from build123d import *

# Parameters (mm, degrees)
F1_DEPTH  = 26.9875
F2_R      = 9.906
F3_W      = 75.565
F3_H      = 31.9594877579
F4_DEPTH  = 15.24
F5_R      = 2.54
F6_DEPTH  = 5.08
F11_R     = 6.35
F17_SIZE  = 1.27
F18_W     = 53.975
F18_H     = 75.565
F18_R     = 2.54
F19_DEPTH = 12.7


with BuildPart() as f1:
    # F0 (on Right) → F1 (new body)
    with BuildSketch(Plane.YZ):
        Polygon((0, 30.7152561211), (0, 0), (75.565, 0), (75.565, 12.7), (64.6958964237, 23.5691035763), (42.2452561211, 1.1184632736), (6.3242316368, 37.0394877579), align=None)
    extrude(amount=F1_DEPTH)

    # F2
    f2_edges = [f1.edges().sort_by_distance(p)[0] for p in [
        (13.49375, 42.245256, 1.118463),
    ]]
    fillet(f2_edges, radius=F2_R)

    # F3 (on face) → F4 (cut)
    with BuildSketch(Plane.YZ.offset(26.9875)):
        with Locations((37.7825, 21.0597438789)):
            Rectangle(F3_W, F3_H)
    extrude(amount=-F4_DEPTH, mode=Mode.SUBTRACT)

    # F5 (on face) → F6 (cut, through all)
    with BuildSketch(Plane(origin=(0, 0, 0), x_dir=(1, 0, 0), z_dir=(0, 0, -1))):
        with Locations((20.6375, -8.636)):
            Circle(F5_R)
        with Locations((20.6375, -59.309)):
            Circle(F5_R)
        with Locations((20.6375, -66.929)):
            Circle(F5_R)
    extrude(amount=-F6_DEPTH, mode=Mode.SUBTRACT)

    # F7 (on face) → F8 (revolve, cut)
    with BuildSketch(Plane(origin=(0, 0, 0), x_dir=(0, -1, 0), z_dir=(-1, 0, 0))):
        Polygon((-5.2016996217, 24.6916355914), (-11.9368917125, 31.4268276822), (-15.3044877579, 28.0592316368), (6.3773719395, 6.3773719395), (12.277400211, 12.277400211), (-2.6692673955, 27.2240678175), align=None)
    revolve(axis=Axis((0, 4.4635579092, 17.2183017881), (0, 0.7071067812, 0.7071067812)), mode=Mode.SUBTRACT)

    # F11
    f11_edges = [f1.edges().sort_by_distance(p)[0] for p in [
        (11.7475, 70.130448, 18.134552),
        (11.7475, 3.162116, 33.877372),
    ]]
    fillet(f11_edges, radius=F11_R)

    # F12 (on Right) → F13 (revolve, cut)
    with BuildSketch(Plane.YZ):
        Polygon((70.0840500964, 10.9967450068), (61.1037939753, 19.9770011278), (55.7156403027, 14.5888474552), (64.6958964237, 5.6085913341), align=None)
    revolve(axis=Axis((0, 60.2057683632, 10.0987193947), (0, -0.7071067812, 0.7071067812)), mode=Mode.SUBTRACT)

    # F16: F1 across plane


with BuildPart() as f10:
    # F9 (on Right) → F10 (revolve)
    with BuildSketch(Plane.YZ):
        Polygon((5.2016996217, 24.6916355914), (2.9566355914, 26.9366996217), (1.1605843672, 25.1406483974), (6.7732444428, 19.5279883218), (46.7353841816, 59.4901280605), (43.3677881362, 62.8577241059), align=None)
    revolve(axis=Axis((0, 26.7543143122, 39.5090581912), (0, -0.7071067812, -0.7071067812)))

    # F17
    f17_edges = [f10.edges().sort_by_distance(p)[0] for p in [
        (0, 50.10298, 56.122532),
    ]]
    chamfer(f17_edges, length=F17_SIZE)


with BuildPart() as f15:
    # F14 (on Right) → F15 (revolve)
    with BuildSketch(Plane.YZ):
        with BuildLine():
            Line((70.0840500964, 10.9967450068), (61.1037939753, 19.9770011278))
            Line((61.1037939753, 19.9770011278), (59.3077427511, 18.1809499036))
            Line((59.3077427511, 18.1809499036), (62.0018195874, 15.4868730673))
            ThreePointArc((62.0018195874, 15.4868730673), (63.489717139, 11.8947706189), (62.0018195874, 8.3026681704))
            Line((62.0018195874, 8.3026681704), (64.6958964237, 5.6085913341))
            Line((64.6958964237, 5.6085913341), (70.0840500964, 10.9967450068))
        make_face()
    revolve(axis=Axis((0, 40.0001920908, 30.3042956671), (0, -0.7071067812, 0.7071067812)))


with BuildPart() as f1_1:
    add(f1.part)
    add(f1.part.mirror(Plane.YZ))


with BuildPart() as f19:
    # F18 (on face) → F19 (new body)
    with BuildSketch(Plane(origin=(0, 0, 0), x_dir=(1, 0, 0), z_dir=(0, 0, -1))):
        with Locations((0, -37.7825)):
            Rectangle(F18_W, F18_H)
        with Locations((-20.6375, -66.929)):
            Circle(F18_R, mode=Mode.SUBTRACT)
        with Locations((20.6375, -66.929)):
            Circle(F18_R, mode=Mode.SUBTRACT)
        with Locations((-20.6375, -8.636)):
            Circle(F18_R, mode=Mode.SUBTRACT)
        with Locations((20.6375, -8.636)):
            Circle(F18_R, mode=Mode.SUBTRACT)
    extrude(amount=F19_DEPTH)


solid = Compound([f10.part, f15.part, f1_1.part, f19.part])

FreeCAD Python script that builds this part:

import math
import FreeCAD as App
import Part
import Sketcher
Q = App.Units.Quantity


def edges_at(feature, points):
    """Names of the edges that pass closest to the given points."""
    edges = feature.Shape.Edges
    near = lambda p: min(range(len(edges)), key=lambda i: edges[i].distToShape(Part.Vertex(*p))[0])
    return sorted({f"Edge{near(p) + 1}" for p in points})

doc = App.newDocument("Part")
body = doc.addObject("PartDesign::Body", "Body")

# Sketch on YZ plane
sketch1 = body.newObject("Sketcher::SketchObject", "Sketch")
sketch1.AttachmentSupport = (doc.getObject("YZ_Plane"), [""])
sketch1.MapMode = "FlatFace"
sketch1.addGeometry([
    Part.LineSegment(App.Vector(0, 31, 0), App.Vector(0, 0, 0)),  # 0
    Part.LineSegment(App.Vector(0, 0, 0), App.Vector(76, 0, 0)),  # 1
    Part.LineSegment(App.Vector(76, 0, 0), App.Vector(76, 13, 0)),  # 2
    Part.LineSegment(App.Vector(76, 13, 0), App.Vector(65, 24, 0)),  # 3
    Part.LineSegment(App.Vector(65, 24, 0), App.Vector(42, 1, 0)),  # 4
    Part.LineSegment(App.Vector(42, 1, 0), App.Vector(6, 37, 0)),  # 5
    Part.LineSegment(App.Vector(6, 37, 0), App.Vector(0, 31, 0)),  # 6
], False)
sketch1.addConstraint([
    Sketcher.Constraint("Coincident", 0, 2, 1, 1),
    Sketcher.Constraint("Coincident", 1, 2, 2, 1),
    Sketcher.Constraint("Coincident", 2, 2, 3, 1),
    Sketcher.Constraint("Coincident", 3, 2, 4, 1),
    Sketcher.Constraint("Coincident", 4, 2, 5, 1),
    Sketcher.Constraint("Coincident", 5, 2, 6, 1),
    Sketcher.Constraint("Coincident", 6, 2, 0, 1),
    Sketcher.Constraint("Vertical", 0),
    Sketcher.Constraint("Horizontal", 1),
    Sketcher.Constraint("Vertical", 2),
    Sketcher.Constraint("Coincident", 0, 2, -1, 1),
    Sketcher.Constraint("Perpendicular", 3, 4),
    Sketcher.Constraint("Perpendicular", 4, 5),
    Sketcher.Constraint("Perpendicular", 5, 6),
    Sketcher.Constraint("Distance", 5, Q("2 in")),
    Sketcher.Constraint("DistanceY", 2, 1, 2, 2, Q("0.5 in")),
    Sketcher.Constraint("Angle", 3, Q("135 deg")),
    Sketcher.Constraint("Distance", 4, Q("1.25 in")),
    Sketcher.Constraint("DistanceX", 1, 1, 1, 2, Q("2.975 in")),
    Sketcher.Constraint("DistanceY", 0, 2, 0, 1, 30.715256),
])
pad1 = body.newObject("PartDesign::Pad", "Pad")
pad1.Profile = sketch1
pad1.Length = Q("1.0625 in")
doc.recompute()

fillet = body.newObject("PartDesign::Fillet", "Fillet")
fillet.Base = (pad1, edges_at(pad1, [(13.494, 42.245, 1.118)]))
fillet.Radius = Q("0.39 in")

# Sketch on YZ plane
sketch2 = body.newObject("Sketcher::SketchObject", "Sketch001")
sketch2.AttachmentSupport = (doc.getObject("YZ_Plane"), [""])
sketch2.MapMode = "FlatFace"
sketch2.AttachmentOffset = App.Placement(App.Vector(0, 0, 1.0625 * 25.4), App.Rotation())
sketch2.addGeometry([
    Part.LineSegment(App.Vector(0, 37, 0), App.Vector(0, 5, 0)),
    Part.LineSegment(App.Vector(0, 5, 0), App.Vector(76, 5, 0)),
    Part.LineSegment(App.Vector(76, 5, 0), App.Vector(76, 37, 0)),
    Part.LineSegment(App.Vector(76, 37, 0), App.Vector(0, 37, 0)),
], False)
sketch2.addConstraint([
    Sketcher.Constraint("Coincident", 0, 2, 1, 1),
    Sketcher.Constraint("Coincident", 1, 2, 2, 1),
    Sketcher.Constraint("Coincident", 2, 2, 3, 1),
    Sketcher.Constraint("Coincident", 3, 2, 0, 1),
    Sketcher.Constraint("Vertical", 0),
    Sketcher.Constraint("Horizontal", 1),
    Sketcher.Constraint("Vertical", 2),
    Sketcher.Constraint("Horizontal", 3),
    Sketcher.Constraint("PointOnObject", 0, 2, -2),
    Sketcher.Constraint("DistanceY", -1, 1, 0, 2, Q("0.2 in")),
    Sketcher.Constraint("DistanceX", 1, 1, 1, 2, Q("2.975 in")),
    Sketcher.Constraint("DistanceY", 0, 2, 0, 1, 31.959488),
])
pocket1 = body.newObject("PartDesign::Pocket", "Pocket")
pocket1.Profile = sketch2
pocket1.Length = Q("0.6 in")

# Sketch on XY plane
sketch3 = body.newObject("Sketcher::SketchObject", "Sketch002")
sketch3.AttachmentSupport = (doc.getObject("XY_Plane"), [""])
sketch3.MapMode = "FlatFace"
sketch3.addGeometry([
    Part.Circle(App.Vector(20.6, 8.6, 0), App.Vector(0, 0, 1), 2.5),
    Part.Circle(App.Vector(20.6, 59.3, 0), App.Vector(0, 0, 1), 2.5),
    Part.Circle(App.Vector(20.6, 66.9, 0), App.Vector(0, 0, 1), 2.5),
], False)
sketch3.addConstraint([
    Sketcher.Constraint("Equal", 0, 1),
    Sketcher.Constraint("Equal", 1, 2),
    Sketcher.Constraint("Vertical", 0, 3, 1, 3),
    Sketcher.Constraint("Vertical", 1, 3, 2, 3),
    Sketcher.Constraint("Diameter", 0, Q("0.2 in")),
    Sketcher.Constraint("DistanceY", 1, 3, 2, 3, Q("0.3 in")),
    Sketcher.Constraint("DistanceY", -1, 1, 0, 3, Q("0.34 in")),
    Sketcher.Constraint("DistanceX", -1, 1, 0, 3, Q("0.8125 in")),
    Sketcher.Constraint("DistanceY", -1, 1, 1, 3, Q("2.335 in")),
])
pocket2 = body.newObject("PartDesign::Pocket", "Pocket001")
pocket2.Profile = sketch3
pocket2.Type = "ThroughAll"
pocket2.Reversed = True

# Sketch on YZ plane
sketch4 = body.newObject("Sketcher::SketchObject", "Sketch003")
sketch4.AttachmentSupport = (doc.getObject("YZ_Plane"), [""])
sketch4.MapMode = "FlatFace"
sketch4.addGeometry([
    Part.LineSegment(App.Vector(5.2, 24.7, 0), App.Vector(11.9, 31.4, 0)),  # 0
    Part.LineSegment(App.Vector(11.9, 31.4, 0), App.Vector(15.3, 28.1, 0)),  # 1
    Part.LineSegment(App.Vector(15.3, 28.1, 0), App.Vector(-6.4, 6.4, 0)),  # 2
    Part.LineSegment(App.Vector(-6.4, 6.4, 0), App.Vector(-12.3, 12.3, 0)),  # 3
    Part.LineSegment(App.Vector(-12.3, 12.3, 0), App.Vector(2.7, 27.2, 0)),  # 4
    Part.LineSegment(App.Vector(2.7, 27.2, 0), App.Vector(5.2, 24.7, 0)),  # 5
], False)
sketch4.addGeometry(Part.LineSegment(App.Vector(-6.4, 6.4, 0), App.Vector(15.3, 28.1, 0)), True)  # axis
sketch4.addConstraint([
    Sketcher.Constraint("Coincident", 0, 2, 1, 1),
    Sketcher.Constraint("Coincident", 1, 2, 2, 1),
    Sketcher.Constraint("Coincident", 2, 2, 3, 1),
    Sketcher.Constraint("Coincident", 3, 2, 4, 1),
    Sketcher.Constraint("Coincident", 4, 2, 5, 1),
    Sketcher.Constraint("Coincident", 5, 2, 0, 1),
    Sketcher.Constraint("Coincident", 6, 1, 2, 2),
    Sketcher.Constraint("Coincident", 6, 2, 1, 2),
    Sketcher.Constraint("Perpendicular", 0, 1),
    Sketcher.Constraint("Perpendicular", 1, 2),
    Sketcher.Constraint("Perpendicular", 2, 3),
    Sketcher.Constraint("Perpendicular", 3, 4),
    Sketcher.Constraint("Perpendicular", 4, 5),
    Sketcher.Constraint("Angle", 0, Q("45 deg")),
    Sketcher.Constraint("Distance", 0, Q("0.375 in")),
    Sketcher.Constraint("Distance", 1, Q("0.1875 in")),
    Sketcher.Constraint("Distance", 5, Q("0.141 in")),
    Sketcher.Constraint("DistanceX", 3, 2, -1, 1, 12.2774),
    Sketcher.Constraint("DistanceY", -1, 1, 3, 2, 12.2774),
    Sketcher.Constraint("DistanceX", -1, 1, 5, 2, 5.2017),
])
groove = body.newObject("PartDesign::Groove", "Groove")
groove.Profile = sketch4
groove.ReferenceAxis = (sketch4, ["Axis0"])
groove.Angle = 360
doc.recompute()

fillet2 = body.newObject("PartDesign::Fillet", "Fillet001")
fillet2.Base = (groove, edges_at(groove, [(11.748, 70.13, 18.135), (11.748, 3.162, 33.877)]))
fillet2.Radius = Q("0.25 in")

# Sketch on YZ plane
sketch5 = body.newObject("Sketcher::SketchObject", "Sketch004")
sketch5.AttachmentSupport = (doc.getObject("YZ_Plane"), [""])
sketch5.MapMode = "FlatFace"
sketch5.addGeometry([
    Part.LineSegment(App.Vector(70, 11, 0), App.Vector(61, 20, 0)),
    Part.LineSegment(App.Vector(61, 20, 0), App.Vector(56, 15, 0)),
    Part.LineSegment(App.Vector(56, 15, 0), App.Vector(65, 6, 0)),
    Part.LineSegment(App.Vector(65, 6, 0), App.Vector(70, 11, 0)),
], False)
sketch5.addGeometry(Part.LineSegment(App.Vector(65, 6, 0), App.Vector(56, 15, 0)), True)  # axis
sketch5.addConstraint([
    Sketcher.Constraint("Coincident", 0, 2, 1, 1),
    Sketcher.Constraint("Coincident", 1, 2, 2, 1),
    Sketcher.Constraint("Coincident", 2, 2, 3, 1),
    Sketcher.Constraint("Coincident", 3, 2, 0, 1),
    Sketcher.Constraint("Coincident", 4, 1, 2, 2),
    Sketcher.Constraint("Coincident", 4, 2, 1, 2),
    Sketcher.Constraint("Perpendicular", 0, 1),
    Sketcher.Constraint("Perpendicular", 1, 2),
    Sketcher.Constraint("Perpendicular", 2, 3),
    Sketcher.Constraint("Angle", 0, Q("135 deg")),
    Sketcher.Constraint("Distance", 0, Q("0.5 in")),
    Sketcher.Constraint("Distance", 1, Q("0.3 in")),
    Sketcher.Constraint("DistanceY", -1, 1, 0, 2, 19.977001),
    Sketcher.Constraint("DistanceX", -1, 1, 1, 2, 55.71564),
])
groove2 = body.newObject("PartDesign::Groove", "Groove001")
groove2.Profile = sketch5
groove2.ReferenceAxis = (sketch5, ["Axis0"])
groove2.Angle = 360
body2 = doc.addObject("PartDesign::Body", "Body001")

# Sketch on YZ plane
sketch6 = body2.newObject("Sketcher::SketchObject", "Sketch005")
sketch6.AttachmentSupport = (doc.getObject("YZ_Plane001"), [""])
sketch6.MapMode = "FlatFace"
sketch6.addGeometry([
    Part.LineSegment(App.Vector(5.2, 24.7, 0), App.Vector(3, 26.9, 0)),  # 0
    Part.LineSegment(App.Vector(3, 26.9, 0), App.Vector(1.2, 25.1, 0)),  # 1
    Part.LineSegment(App.Vector(1.2, 25.1, 0), App.Vector(6.8, 19.5, 0)),  # 2
    Part.LineSegment(App.Vector(6.8, 19.5, 0), App.Vector(46.7, 59.5, 0)),  # 3
    Part.LineSegment(App.Vector(46.7, 59.5, 0), App.Vector(43.4, 62.9, 0)),  # 4
    Part.LineSegment(App.Vector(43.4, 62.9, 0), App.Vector(5.2, 24.7, 0)),  # 5
], False)
sketch6.addGeometry(Part.LineSegment(App.Vector(46.7, 59.5, 0), App.Vector(6.8, 19.5, 0)), True)  # axis
sketch6.addConstraint([
    Sketcher.Constraint("Coincident", 0, 2, 1, 1),
    Sketcher.Constraint("Coincident", 1, 2, 2, 1),
    Sketcher.Constraint("Coincident", 2, 2, 3, 1),
    Sketcher.Constraint("Coincident", 3, 2, 4, 1),
    Sketcher.Constraint("Coincident", 4, 2, 5, 1),
    Sketcher.Constraint("Coincident", 5, 2, 0, 1),
    Sketcher.Constraint("Coincident", 6, 1, 3, 2),
    Sketcher.Constraint("Coincident", 6, 2, 2, 2),
    Sketcher.Constraint("Perpendicular", 0, 1),
    Sketcher.Constraint("Perpendicular", 1, 2),
    Sketcher.Constraint("Perpendicular", 2, 3),
    Sketcher.Constraint("Perpendicular", 3, 4),
    Sketcher.Constraint("Perpendicular", 4, 5),
    Sketcher.Constraint("Angle", 0, Q("135 deg")),
    Sketcher.Constraint("Distance", 1, Q("0.1 in")),
    Sketcher.Constraint("Distance", 0, Q("0.125 in")),
    Sketcher.Constraint("Distance", 2, Q("0.3125 in")),
    Sketcher.Constraint("Distance", 3, Q("2.225 in")),
    Sketcher.Constraint("DistanceY", -1, 1, 0, 2, Q("1.0605 in")),
    Sketcher.Constraint("DistanceX", -1, 1, 5, 2, 5.2017),
])
revolution = body2.newObject("PartDesign::Revolution", "Revolution")
revolution.Profile = sketch6
revolution.ReferenceAxis = (sketch6, ["Axis0"])
revolution.Angle = 360
doc.recompute()

chamfer = body2.newObject("PartDesign::Chamfer", "Chamfer")
chamfer.Base = (revolution, edges_at(revolution, [(0, 50.103, 56.123)]))
chamfer.Size = Q("0.05 in")
body3 = doc.addObject("PartDesign::Body", "Body002")

# Sketch on YZ plane
sketch7 = body3.newObject("Sketcher::SketchObject", "Sketch006")
sketch7.AttachmentSupport = (doc.getObject("YZ_Plane002"), [""])
sketch7.MapMode = "FlatFace"
sketch7.addGeometry([
    Part.LineSegment(App.Vector(70.1, 11, 0), App.Vector(61.1, 20, 0)),  # 0
    Part.LineSegment(App.Vector(61.1, 20, 0), App.Vector(59.3, 18.2, 0)),  # 1
    Part.LineSegment(App.Vector(59.3, 18.2, 0), App.Vector(62, 15.5, 0)),  # 2
    Part.ArcOfCircle(Part.Circle(App.Vector(58.4, 11.9, 0), App.Vector(0, 0, 1), 5.1), math.radians(-45), math.radians(45)),  # 3
    Part.LineSegment(App.Vector(62, 8.3, 0), App.Vector(64.7, 5.6, 0)),  # 4
    Part.LineSegment(App.Vector(64.7, 5.6, 0), App.Vector(70.1, 11, 0)),  # 5
], False)
sketch7.addGeometry(Part.LineSegment(App.Vector(64.7, 5.6, 0), App.Vector(55.7, 14.6, 0)), True)  # axis
sketch7.addConstraint([
    Sketcher.Constraint("Coincident", 0, 2, 1, 1),
    Sketcher.Constraint("Coincident", 1, 2, 2, 1),
    Sketcher.Constraint("Tangent", 2, 2, 3, 2),
    Sketcher.Constraint("Coincident", 3, 1, 4, 1),
    Sketcher.Constraint("Coincident", 4, 2, 5, 1),
    Sketcher.Constraint("Coincident", 5, 2, 0, 1),
    Sketcher.Constraint("Coincident", 6, 1, 4, 2),
    Sketcher.Constraint("Perpendicular", 0, 1),
    Sketcher.Constraint("Perpendicular", 1, 2),
    Sketcher.Constraint("Parallel", 2, 4),
    Sketcher.Constraint("Perpendicular", 4, 5),
    Sketcher.Constraint("Perpendicular", 5, 6),
    Sketcher.Constraint("Vertical", 2, 2, 3, 1),
    Sketcher.Constraint("Equal", 2, 4),
    Sketcher.Constraint("Equal", 0, 6),
    Sketcher.Constraint("Radius", 3, Q("0.2 in")),
    Sketcher.Constraint("Angle", 0, Q("135 deg")),
    Sketcher.Constraint("Distance", 0, Q("0.5 in")),
    Sketcher.Constraint("Distance", 1, Q("0.1 in")),
    Sketcher.Constraint("DistanceY", -1, 1, 0, 2, 19.977001),
    Sketcher.Constraint("DistanceX", -1, 1, 2, 2, 62.00182),
])
revolution2 = body3.newObject("PartDesign::Revolution", "Revolution001")
revolution2.Profile = sketch7
revolution2.ReferenceAxis = (sketch7, ["Axis0"])
revolution2.Angle = 360
body4 = doc.addObject("PartDesign::Body", "Body003")
doc.recompute()

body4.BaseFeature = body
doc.recompute()

mirroring = doc.addObject("Part::Mirroring", "Mirroring")
mirroring.Source = body
mirroring.Base = App.Vector(0, 0, 0)
mirroring.Normal = App.Vector(1, 0, 0)
body5 = doc.addObject("PartDesign::Body", "Body004")
body5.BaseFeature = mirroring
boolean = body4.newObject("PartDesign::Boolean", "Boolean")
boolean.Type = "Fuse"
boolean.addObjects([body5])
doc.recompute()
body6 = doc.addObject("PartDesign::Body", "Body005")

# Sketch on XY plane
sketch8 = body6.newObject("Sketcher::SketchObject", "Sketch007")
sketch8.AttachmentSupport = (doc.getObject("XY_Plane005"), [""])
sketch8.MapMode = "FlatFace"
sketch8.addGeometry([
    Part.LineSegment(App.Vector(-27, 0, 0), App.Vector(-27, 75.6, 0)),  # 0
    Part.LineSegment(App.Vector(-27, 75.6, 0), App.Vector(27, 75.6, 0)),  # 1
    Part.LineSegment(App.Vector(27, 75.6, 0), App.Vector(27, 0, 0)),  # 2
    Part.LineSegment(App.Vector(27, 0, 0), App.Vector(-27, 0, 0)),  # 3
    Part.Circle(App.Vector(-20.6, 66.9, 0), App.Vector(0, 0, 1), 2.5),  # 4
    Part.Circle(App.Vector(20.6, 66.9, 0), App.Vector(0, 0, 1), 2.5),  # 5
    Part.Circle(App.Vector(-20.6, 8.6, 0), App.Vector(0, 0, 1), 2.5),  # 6
    Part.Circle(App.Vector(20.6, 8.6, 0), App.Vector(0, 0, 1), 2.5),  # 7
], False)
sketch8.addConstraint([
    Sketcher.Constraint("Coincident", 0, 2, 1, 1),
    Sketcher.Constraint("Coincident", 1, 2, 2, 1),
    Sketcher.Constraint("Coincident", 2, 2, 3, 1),
    Sketcher.Constraint("Coincident", 3, 2, 0, 1),
    Sketcher.Constraint("Vertical", 0),
    Sketcher.Constraint("Horizontal", 1),
    Sketcher.Constraint("Vertical", 2),
    Sketcher.Constraint("Horizontal", 3),
    Sketcher.Constraint("Equal", 4, 5),
    Sketcher.Constraint("Equal", 5, 6),
    Sketcher.Constraint("Equal", 6, 7),
    Sketcher.Constraint("Symmetric", 2, 2, 3, 2, -1, 1),
    Sketcher.Constraint("Symmetric", 4, 3, 5, 3, -2),
    Sketcher.Constraint("Symmetric", 6, 3, 7, 3, -2),
    Sketcher.Constraint("Vertical", 4, 3, 6, 3),
    Sketcher.Constraint("Diameter", 4, Q("0.2 in")),
    Sketcher.Constraint("DistanceX", 1, 1, 1, 2, Q("2.125 in")),
    Sketcher.Constraint("DistanceY", 0, 1, 0, 2, Q("2.975 in")),
    Sketcher.Constraint("DistanceY", -1, 1, 6, 3, Q("0.34 in")),
    Sketcher.Constraint("DistanceX", 0, 2, 4, 3, Q("0.25 in")),
    Sketcher.Constraint("DistanceY", 4, 3, 0, 2, Q("0.34 in")),
])
pad2 = body6.newObject("PartDesign::Pad", "Pad001")
pad2.Profile = sketch8
pad2.Length = Q("0.5 in")
pad2.Reversed = True
mirroring.Visibility = False

doc.recompute()
